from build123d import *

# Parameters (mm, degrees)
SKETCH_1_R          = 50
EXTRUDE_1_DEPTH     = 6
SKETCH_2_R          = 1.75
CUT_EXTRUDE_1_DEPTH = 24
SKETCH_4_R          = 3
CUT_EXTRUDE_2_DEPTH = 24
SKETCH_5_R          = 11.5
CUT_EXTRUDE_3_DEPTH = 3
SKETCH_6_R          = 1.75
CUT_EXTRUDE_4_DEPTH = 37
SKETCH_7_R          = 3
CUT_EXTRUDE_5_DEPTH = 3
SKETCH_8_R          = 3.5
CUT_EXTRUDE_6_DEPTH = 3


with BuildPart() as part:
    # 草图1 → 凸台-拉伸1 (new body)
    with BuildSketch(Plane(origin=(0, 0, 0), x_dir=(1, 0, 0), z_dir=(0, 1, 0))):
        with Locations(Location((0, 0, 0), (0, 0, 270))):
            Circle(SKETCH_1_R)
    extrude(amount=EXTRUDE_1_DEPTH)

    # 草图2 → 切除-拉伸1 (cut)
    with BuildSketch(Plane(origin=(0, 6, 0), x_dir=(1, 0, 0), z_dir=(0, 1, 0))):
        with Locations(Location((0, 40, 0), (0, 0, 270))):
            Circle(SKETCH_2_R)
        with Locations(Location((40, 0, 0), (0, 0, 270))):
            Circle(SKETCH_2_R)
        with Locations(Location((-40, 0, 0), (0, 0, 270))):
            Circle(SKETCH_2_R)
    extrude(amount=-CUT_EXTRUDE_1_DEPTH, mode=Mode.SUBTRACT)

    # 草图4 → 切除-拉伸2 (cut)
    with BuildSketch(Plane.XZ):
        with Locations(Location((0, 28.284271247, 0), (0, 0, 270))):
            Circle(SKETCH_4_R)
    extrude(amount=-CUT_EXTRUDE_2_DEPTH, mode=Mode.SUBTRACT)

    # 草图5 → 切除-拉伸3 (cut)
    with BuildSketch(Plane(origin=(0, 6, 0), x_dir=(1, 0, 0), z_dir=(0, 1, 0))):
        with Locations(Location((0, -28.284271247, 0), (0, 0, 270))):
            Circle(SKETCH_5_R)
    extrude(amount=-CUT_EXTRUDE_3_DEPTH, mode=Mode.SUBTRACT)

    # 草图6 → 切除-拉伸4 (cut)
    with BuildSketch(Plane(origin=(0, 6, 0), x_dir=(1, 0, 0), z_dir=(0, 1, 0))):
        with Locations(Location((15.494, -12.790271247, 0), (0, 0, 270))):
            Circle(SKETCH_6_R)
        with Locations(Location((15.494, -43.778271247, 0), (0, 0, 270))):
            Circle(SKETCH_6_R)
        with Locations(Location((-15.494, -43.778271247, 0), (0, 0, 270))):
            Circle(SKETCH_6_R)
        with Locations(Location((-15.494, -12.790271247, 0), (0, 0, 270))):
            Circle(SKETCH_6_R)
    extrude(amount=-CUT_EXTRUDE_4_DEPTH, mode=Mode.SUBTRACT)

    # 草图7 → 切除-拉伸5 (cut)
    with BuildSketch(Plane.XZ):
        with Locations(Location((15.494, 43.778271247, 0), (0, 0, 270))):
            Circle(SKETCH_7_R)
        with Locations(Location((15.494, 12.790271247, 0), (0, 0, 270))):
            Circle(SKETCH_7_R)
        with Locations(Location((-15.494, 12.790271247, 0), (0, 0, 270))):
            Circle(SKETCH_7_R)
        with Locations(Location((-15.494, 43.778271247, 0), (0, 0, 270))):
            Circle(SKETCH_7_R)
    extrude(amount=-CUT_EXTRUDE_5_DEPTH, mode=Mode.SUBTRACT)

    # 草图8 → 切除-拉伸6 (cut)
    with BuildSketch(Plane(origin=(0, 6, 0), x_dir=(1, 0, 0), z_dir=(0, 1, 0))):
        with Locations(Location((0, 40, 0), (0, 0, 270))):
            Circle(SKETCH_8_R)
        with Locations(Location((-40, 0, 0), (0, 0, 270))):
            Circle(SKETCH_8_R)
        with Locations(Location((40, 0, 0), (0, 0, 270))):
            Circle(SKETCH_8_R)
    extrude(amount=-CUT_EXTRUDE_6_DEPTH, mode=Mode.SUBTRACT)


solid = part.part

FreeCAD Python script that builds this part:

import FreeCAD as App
import Part
import Sketcher
Q = App.Units.Quantity

doc = App.newDocument("Part")
params = doc.addObject("Spreadsheet::Sheet", "Params")
for row, (alias, value) in enumerate([
    ("sketch1_diameter", "100 mm"),
    ("pad1_length", "6 mm"),
    ("sketch2_diameter", "3.5 mm"),
    ("pocket1_length", "24 mm"),
    ("sketch3_diameter", "6 mm"),
    ("pocket2_length", "24 mm"),
    ("sketch4_diameter", "23 mm"),
    ("pocket3_length", "3 mm"),
    ("sketch5_diameter", "3.5 mm"),
    ("pocket4_length", "37 mm"),
    ("sketch6_diameter", "6 mm"),
    ("pocket5_length", "3 mm"),
    ("sketch7_diameter", "7 mm"),
    ("pocket6_length", "3 mm"),
], start=1):
    params.set(f"A{row}", alias)
    params.set(f"B{row}", "=" + value)
    params.setAlias(f"B{row}", alias)

body = doc.addObject("PartDesign::Body", "Body")

# Sketch on XZ plane
sketch1 = body.newObject("Sketcher::SketchObject", "Sketch")
sketch1.AttachmentSupport = (doc.getObject("XZ_Plane"), [""])
sketch1.MapMode = "FlatFace"
sketch1.addGeometry(Part.Circle(App.Vector(0, 0, 0), App.Vector(0, 0, 1), 50), False)
sketch1.addConstraint([
    Sketcher.Constraint("Coincident", 0, 3, -1, 1),
    Sketcher.Constraint("Diameter", 0, Q("100 mm")),
])
sketch1.setExpression("Constraints[1]", "Params.sketch1_diameter")
pad1 = body.newObject("PartDesign::Pad", "Pad")
pad1.Profile = sketch1
pad1.setExpression("Length", "Params.pad1_length")
pad1.Reversed = True

# Sketch on XZ plane
sketch2 = body.newObject("Sketcher::SketchObject", "Sketch001")
sketch2.AttachmentSupport = (doc.getObject("XZ_Plane"), [""])
sketch2.MapMode = "FlatFace"
sketch2.AttachmentOffset = App.Placement(App.Vector(0, 0, -6), App.Rotation())
sketch2.addGeometry([
    Part.Circle(App.Vector(0, -40, 0), App.Vector(0, 0, 1), 1.75),
    Part.Circle(App.Vector(40, 0, 0), App.Vector(0, 0, 1), 1.75),
    Part.Circle(App.Vector(-40, 0, 0), App.Vector(0, 0, 1), 1.75),
], False)
sketch2.addConstraint([
    Sketcher.Constraint("Equal", 0, 1),
    Sketcher.Constraint("Equal", 1, 2),
    Sketcher.Constraint("Symmetric", 1, 3, 2, 3, -1, 1),
    Sketcher.Constraint("PointOnObject", 0, 3, -2),
    Sketcher.Constraint("PointOnObject", 1, 3, -1),
    Sketcher.Constraint("Diameter", 0, Q("3.5 mm")),
    Sketcher.Constraint("DistanceY", 0, 3, -1, 1, Q("40 mm")),
    Sketcher.Constraint("DistanceX", -1, 1, 1, 3, Q("40 mm")),
])
sketch2.setExpression("Constraints[5]", "Params.sketch2_diameter")
pocket1 = body.newObject("PartDesign::Pocket", "Pocket")
pocket1.Profile = sketch2
pocket1.setExpression("Length", "Params.pocket1_length")
pocket1.Reversed = True

# Sketch on XZ plane
sketch3 = body.newObject("Sketcher::SketchObject", "Sketch002")
sketch3.AttachmentSupport = (doc.getObject("XZ_Plane"), [""])
sketch3.MapMode = "FlatFace"
sketch3.addGeometry(Part.Circle(App.Vector(0, 28.284271, 0), App.Vector(0, 0, 1), 3), False)
sketch3.addConstraint([
    Sketcher.Constraint("PointOnObject", 0, 3, -2),
    Sketcher.Constraint("Diameter", 0, Q("6 mm")),
    Sketcher.Constraint("DistanceY", -1, 1, 0, 3, Q("28.284271 mm")),
])
sketch3.setExpression("Constraints[1]", "Params.sketch3_diameter")
pocket2 = body.newObject("PartDesign::Pocket", "Pocket001")
pocket2.Profile = sketch3
pocket2.setExpression("Length", "Params.pocket2_length")

# Sketch on XZ plane
sketch4 = body.newObject("Sketcher::SketchObject", "Sketch003")
sketch4.AttachmentSupport = (doc.getObject("XZ_Plane"), [""])
sketch4.MapMode = "FlatFace"
sketch4.AttachmentOffset = App.Placement(App.Vector(0, 0, -6), App.Rotation())
sketch4.addGeometry(Part.Circle(App.Vector(0, 28.284271, 0), App.Vector(0, 0, 1), 11.5), False)
sketch4.addConstraint([
    Sketcher.Constraint("PointOnObject", 0, 3, -2),
    Sketcher.Constraint("Diameter", 0, Q("23 mm")),
    Sketcher.Constraint("DistanceY", -1, 1, 0, 3, Q("28.284271 mm")),
])
sketch4.setExpression("Constraints[1]", "Params.sketch4_diameter")
pocket3 = body.newObject("PartDesign::Pocket", "Pocket002")
pocket3.Profile = sketch4
pocket3.setExpression("Length", "Params.pocket3_length")
pocket3.Reversed = True

# Sketch on XZ plane
sketch5 = body.newObject("Sketcher::SketchObject", "Sketch004")
sketch5.AttachmentSupport = (doc.getObject("XZ_Plane"), [""])
sketch5.MapMode = "FlatFace"
sketch5.AttachmentOffset = App.Placement(App.Vector(0, 0, -6), App.Rotation())
sketch5.addGeometry([
    Part.Circle(App.Vector(15.494, 12.790271, 0), App.Vector(0, 0, 1), 1.75),
    Part.Circle(App.Vector(15.494, 43.778271, 0), App.Vector(0, 0, 1), 1.75),
    Part.Circle(App.Vector(-15.494, 43.778271, 0), App.Vector(0, 0, 1), 1.75),
    Part.Circle(App.Vector(-15.494, 12.790271, 0), App.Vector(0, 0, 1), 1.75),
], False)
sketch5.addConstraint([
    Sketcher.Constraint("Equal", 0, 1),
    Sketcher.Constraint("Equal", 1, 2),
    Sketcher.Constraint("Equal", 2, 3),
    Sketcher.Constraint("Symmetric", 1, 3, 2, 3, -2),
    Sketcher.Constraint("Symmetric", 0, 3, 3, 3, -2),
    Sketcher.Constraint("Vertical", 0, 3, 1, 3),
    Sketcher.Constraint("Diameter", 0, Q("3.5 mm")),
    Sketcher.Constraint("DistanceX", -1, 1, 0, 3, Q("15.494 mm")),
    Sketcher.Constraint("DistanceY", 0, 3, 1, 3, Q("30.988 mm")),
    Sketcher.Constraint("DistanceY", -1, 1, 0, 3, Q("12.790271 mm")),
])
sketch5.setExpression("Constraints[6]", "Params.sketch5_diameter")
pocket4 = body.newObject("PartDesign::Pocket", "Pocket003")
pocket4.Profile = sketch5
pocket4.setExpression("Length", "Params.pocket4_length")
pocket4.Reversed = True

# Sketch on XZ plane
sketch6 = body.newObject("Sketcher::SketchObject", "Sketch005")
sketch6.AttachmentSupport = (doc.getObject("XZ_Plane"), [""])
sketch6.MapMode = "FlatFace"
sketch6.addGeometry([
    Part.Circle(App.Vector(15.494, 43.778271, 0), App.Vector(0, 0, 1), 3),
    Part.Circle(App.Vector(15.494, 12.790271, 0), App.Vector(0, 0, 1), 3),
    Part.Circle(App.Vector(-15.494, 12.790271, 0), App.Vector(0, 0, 1), 3),
    Part.Circle(App.Vector(-15.494, 43.778271, 0), App.Vector(0, 0, 1), 3),
], False)
sketch6.addConstraint([
    Sketcher.Constraint("Equal", 0, 1),
    Sketcher.Constraint("Equal", 1, 2),
    Sketcher.Constraint("Equal", 2, 3),
    Sketcher.Constraint("Symmetric", 1, 3, 2, 3, -2),
    Sketcher.Constraint("Symmetric", 0, 3, 3, 3, -2),
    Sketcher.Constraint("Vertical", 0, 3, 1, 3),
    Sketcher.Constraint("Diameter", 0, Q("6 mm")),
    Sketcher.Constraint("DistanceX", -1, 1, 0, 3, Q("15.494 mm")),
    Sketcher.Constraint("DistanceY", 1, 3, 0, 3, Q("30.988 mm")),
    Sketcher.Constraint("DistanceY", -1, 1, 0, 3, Q("43.778271 mm")),
])
sketch6.setExpression("Constraints[6]", "Params.sketch6_diameter")
pocket5 = body.newObject("PartDesign::Pocket", "Pocket004")
pocket5.Profile = sketch6
pocket5.setExpression("Length", "Params.pocket5_length")

# Sketch on XZ plane
sketch7 = body.newObject("Sketcher::SketchObject", "Sketch006")
sketch7.AttachmentSupport = (doc.getObject("XZ_Plane"), [""])
sketch7.MapMode = "FlatFace"
sketch7.AttachmentOffset = App.Placement(App.Vector(0, 0, -6), App.Rotation())
sketch7.addGeometry([
    Part.Circle(App.Vector(0, -40, 0), App.Vector(0, 0, 1), 3.5),
    Part.Circle(App.Vector(-40, 0, 0), App.Vector(0, 0, 1), 3.5),
    Part.Circle(App.Vector(40, 0, 0), App.Vector(0, 0, 1), 3.5),
], False)
sketch7.addConstraint([
    Sketcher.Constraint("Equal", 0, 1),
    Sketcher.Constraint("Equal", 1, 2),
    Sketcher.Constraint("Symmetric", 1, 3, 2, 3, -1, 1),
    Sketcher.Constraint("PointOnObject", 0, 3, -2),
    Sketcher.Constraint("PointOnObject", 1, 3, -1),
    Sketcher.Constraint("Diameter", 0, Q("7 mm")),
    Sketcher.Constraint("DistanceY", 0, 3, -1, 1, Q("40 mm")),
    Sketcher.Constraint("DistanceX", 1, 3, -1, 1, Q("40 mm")),
])
sketch7.setExpression("Constraints[5]", "Params.sketch7_diameter")
pocket6 = body.newObject("PartDesign::Pocket", "Pocket005")
pocket6.Profile = sketch7
pocket6.setExpression("Length", "Params.pocket6_length")
pocket6.Reversed = True

doc.recompute()
